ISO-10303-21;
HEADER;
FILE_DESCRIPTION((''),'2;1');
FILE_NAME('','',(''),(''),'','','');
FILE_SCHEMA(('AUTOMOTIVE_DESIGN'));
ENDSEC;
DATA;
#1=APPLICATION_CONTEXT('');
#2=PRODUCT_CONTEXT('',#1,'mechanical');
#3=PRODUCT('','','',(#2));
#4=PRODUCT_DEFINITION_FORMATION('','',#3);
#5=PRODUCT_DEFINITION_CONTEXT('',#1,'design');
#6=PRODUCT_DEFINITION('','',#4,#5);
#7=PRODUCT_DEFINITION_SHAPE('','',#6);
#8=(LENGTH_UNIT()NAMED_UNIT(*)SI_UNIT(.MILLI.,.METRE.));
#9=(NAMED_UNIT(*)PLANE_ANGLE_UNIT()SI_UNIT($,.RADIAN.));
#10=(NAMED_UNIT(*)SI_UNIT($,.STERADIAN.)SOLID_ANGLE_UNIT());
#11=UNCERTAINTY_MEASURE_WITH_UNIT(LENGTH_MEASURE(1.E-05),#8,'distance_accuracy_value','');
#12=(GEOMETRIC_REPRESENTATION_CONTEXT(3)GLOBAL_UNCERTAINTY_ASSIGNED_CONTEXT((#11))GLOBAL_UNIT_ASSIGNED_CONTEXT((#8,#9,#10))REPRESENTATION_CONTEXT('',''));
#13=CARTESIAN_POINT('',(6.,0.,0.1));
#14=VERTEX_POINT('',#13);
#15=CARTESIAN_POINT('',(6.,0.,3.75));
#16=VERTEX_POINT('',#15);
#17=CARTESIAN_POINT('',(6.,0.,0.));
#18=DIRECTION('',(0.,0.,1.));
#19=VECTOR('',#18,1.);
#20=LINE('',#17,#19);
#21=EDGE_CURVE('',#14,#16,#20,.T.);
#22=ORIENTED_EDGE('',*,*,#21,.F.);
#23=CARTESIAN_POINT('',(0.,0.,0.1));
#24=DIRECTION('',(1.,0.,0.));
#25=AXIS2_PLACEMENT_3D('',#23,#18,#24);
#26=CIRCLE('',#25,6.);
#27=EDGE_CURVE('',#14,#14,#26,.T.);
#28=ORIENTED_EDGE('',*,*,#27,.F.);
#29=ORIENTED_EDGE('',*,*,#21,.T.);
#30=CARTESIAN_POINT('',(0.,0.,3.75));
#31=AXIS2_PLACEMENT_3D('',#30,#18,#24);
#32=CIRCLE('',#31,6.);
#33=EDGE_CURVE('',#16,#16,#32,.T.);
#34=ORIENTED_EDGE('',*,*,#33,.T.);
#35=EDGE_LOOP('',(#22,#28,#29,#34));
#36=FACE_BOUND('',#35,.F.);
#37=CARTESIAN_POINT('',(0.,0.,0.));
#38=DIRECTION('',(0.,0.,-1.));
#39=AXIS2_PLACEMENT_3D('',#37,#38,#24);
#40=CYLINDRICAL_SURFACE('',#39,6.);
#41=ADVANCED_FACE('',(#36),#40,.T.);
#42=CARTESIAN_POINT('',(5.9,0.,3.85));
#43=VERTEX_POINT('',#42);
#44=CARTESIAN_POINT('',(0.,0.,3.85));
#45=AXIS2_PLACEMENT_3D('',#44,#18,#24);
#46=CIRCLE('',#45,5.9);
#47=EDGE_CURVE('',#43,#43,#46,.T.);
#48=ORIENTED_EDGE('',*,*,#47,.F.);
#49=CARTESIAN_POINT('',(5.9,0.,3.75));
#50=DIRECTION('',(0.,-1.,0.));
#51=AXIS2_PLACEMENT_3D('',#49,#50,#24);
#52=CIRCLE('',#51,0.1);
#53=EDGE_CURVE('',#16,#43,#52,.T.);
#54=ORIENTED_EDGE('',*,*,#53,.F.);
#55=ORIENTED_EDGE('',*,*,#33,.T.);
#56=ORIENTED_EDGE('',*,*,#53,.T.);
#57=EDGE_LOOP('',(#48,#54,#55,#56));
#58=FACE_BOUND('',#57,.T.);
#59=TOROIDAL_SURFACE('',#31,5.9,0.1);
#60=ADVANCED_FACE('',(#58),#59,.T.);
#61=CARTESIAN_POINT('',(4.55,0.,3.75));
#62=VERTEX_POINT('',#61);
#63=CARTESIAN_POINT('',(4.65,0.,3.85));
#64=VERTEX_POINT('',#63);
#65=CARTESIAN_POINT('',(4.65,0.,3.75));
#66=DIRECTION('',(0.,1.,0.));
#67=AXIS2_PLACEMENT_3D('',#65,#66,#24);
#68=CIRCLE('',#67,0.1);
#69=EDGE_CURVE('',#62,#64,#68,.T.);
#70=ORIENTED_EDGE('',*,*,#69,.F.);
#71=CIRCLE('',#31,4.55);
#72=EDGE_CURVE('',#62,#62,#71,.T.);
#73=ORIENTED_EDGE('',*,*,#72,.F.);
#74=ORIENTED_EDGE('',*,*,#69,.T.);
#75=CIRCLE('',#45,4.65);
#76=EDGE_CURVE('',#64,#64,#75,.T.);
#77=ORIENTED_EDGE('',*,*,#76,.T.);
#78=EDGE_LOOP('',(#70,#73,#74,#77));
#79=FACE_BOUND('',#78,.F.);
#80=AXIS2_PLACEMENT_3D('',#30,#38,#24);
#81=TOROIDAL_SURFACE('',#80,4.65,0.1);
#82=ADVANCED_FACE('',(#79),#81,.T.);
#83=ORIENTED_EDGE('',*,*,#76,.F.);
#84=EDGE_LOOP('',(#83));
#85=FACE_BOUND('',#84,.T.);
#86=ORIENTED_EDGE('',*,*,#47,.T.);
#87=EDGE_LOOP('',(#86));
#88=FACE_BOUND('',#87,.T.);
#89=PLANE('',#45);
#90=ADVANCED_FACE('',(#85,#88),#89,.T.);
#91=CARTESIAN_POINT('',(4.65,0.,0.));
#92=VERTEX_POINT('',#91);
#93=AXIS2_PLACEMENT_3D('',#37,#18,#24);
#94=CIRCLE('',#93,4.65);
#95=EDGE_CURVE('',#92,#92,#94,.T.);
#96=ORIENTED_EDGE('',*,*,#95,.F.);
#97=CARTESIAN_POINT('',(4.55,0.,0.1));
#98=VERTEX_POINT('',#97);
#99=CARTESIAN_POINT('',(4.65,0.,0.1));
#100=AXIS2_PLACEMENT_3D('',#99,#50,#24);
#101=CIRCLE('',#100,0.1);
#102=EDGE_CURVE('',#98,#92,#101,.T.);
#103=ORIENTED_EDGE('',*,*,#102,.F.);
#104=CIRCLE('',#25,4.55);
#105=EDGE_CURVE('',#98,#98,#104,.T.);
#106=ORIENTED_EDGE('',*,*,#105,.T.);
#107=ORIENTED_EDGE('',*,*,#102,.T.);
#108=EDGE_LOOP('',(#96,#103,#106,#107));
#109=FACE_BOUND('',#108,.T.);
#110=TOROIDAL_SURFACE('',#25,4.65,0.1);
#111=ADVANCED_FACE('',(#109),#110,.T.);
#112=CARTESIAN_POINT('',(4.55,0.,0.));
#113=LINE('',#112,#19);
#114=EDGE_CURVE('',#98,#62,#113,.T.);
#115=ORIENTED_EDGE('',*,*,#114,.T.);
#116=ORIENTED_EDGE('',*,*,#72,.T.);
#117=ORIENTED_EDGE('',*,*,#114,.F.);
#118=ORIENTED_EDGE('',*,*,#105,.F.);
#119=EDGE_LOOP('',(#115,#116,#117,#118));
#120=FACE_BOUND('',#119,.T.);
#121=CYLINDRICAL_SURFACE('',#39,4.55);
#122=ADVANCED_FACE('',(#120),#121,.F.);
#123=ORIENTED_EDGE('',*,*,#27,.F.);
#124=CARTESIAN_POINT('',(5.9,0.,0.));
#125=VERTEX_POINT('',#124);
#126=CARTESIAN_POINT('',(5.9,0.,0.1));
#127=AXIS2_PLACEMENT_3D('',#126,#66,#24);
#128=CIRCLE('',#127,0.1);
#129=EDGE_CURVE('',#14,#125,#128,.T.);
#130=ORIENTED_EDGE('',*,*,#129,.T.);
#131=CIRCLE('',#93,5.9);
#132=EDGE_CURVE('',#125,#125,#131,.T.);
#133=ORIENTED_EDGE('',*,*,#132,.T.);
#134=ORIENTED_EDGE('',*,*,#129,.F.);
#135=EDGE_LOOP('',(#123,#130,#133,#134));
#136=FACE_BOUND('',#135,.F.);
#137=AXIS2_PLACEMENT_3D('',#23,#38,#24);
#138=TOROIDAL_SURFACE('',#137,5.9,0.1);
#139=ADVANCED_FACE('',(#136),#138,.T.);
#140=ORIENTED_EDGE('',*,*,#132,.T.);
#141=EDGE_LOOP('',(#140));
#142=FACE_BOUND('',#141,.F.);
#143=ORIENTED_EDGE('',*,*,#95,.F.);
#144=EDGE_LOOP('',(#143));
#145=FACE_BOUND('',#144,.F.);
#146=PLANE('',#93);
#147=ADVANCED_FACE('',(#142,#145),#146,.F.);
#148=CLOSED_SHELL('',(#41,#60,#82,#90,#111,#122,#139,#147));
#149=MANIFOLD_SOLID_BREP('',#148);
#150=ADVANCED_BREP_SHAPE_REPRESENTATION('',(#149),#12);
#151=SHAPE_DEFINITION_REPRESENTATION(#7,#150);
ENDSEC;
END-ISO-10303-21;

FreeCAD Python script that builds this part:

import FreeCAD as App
import Part
import Sketcher
from FreeCAD import Vector


def edges_at(feature, points):
    """Names of the edges that pass closest to the given points."""
    edges = feature.Shape.Edges
    near = lambda p: min(range(len(edges)), key=lambda i: edges[i].distToShape(Part.Vertex(*p))[0])
    return sorted({f"Edge{near(p) + 1}" for p in points})

doc = App.newDocument("Part")
params = doc.addObject("Spreadsheet::Sheet", "Params")
for row, (alias, value) in enumerate([
    ("sketch1_diameter", "12 mm"),
    ("sketch1_diameter2", "9.1 mm"),
    ("pad1_length", "3.85 mm"),
    ("fillet_radius", "0.1 mm"),
], start=1):
    params.set(f"A{row}", alias)
    params.set(f"B{row}", "=" + value)
    params.setAlias(f"B{row}", alias)

body = doc.addObject("PartDesign::Body", "Body")

sketch1 = doc.addObject("Sketcher::SketchObject", "Sketch")
body.addObject(sketch1)
sketch1.AttachmentSupport = (doc.XY_Plane, [""])
sketch1.MapMode = "FlatFace"
sketch1.addGeometry([
    Part.Circle(Vector(0, 0, 0), Vector(0, 0, 1), 6),
    Part.Circle(Vector(0, 0, 0), Vector(0, 0, 1), 4.5),
], False)
sketch1.addConstraint([
    Sketcher.Constraint("Coincident", 0, 3, -1, 1),
    Sketcher.Constraint("Coincident", 1, 3, -1, 1),
    Sketcher.Constraint("Diameter", 0, 12.0),
    Sketcher.Constraint("Diameter", 1, 9.1),
])
sketch1.setExpression("Constraints[2]", "Params.sketch1_diameter")
sketch1.setExpression("Constraints[3]", "Params.sketch1_diameter2")
pad1 = doc.addObject("PartDesign::Pad", "Pad")
body.addObject(pad1)
pad1.Profile = sketch1
pad1.setExpression("Length", "Params.pad1_length")
doc.recompute()

fillet = doc.addObject("PartDesign::Fillet", "Fillet")
body.addObject(fillet)
fillet.Base = (pad1, edges_at(pad1, [
    (-6, 0, 0),
    (-6, 0, 3.85),
    (-4.55, 0, 0),
    (-4.55, 0, 3.85),
]))
fillet.setExpression("Radius", "Params.fillet_radius")

doc.recompute()
